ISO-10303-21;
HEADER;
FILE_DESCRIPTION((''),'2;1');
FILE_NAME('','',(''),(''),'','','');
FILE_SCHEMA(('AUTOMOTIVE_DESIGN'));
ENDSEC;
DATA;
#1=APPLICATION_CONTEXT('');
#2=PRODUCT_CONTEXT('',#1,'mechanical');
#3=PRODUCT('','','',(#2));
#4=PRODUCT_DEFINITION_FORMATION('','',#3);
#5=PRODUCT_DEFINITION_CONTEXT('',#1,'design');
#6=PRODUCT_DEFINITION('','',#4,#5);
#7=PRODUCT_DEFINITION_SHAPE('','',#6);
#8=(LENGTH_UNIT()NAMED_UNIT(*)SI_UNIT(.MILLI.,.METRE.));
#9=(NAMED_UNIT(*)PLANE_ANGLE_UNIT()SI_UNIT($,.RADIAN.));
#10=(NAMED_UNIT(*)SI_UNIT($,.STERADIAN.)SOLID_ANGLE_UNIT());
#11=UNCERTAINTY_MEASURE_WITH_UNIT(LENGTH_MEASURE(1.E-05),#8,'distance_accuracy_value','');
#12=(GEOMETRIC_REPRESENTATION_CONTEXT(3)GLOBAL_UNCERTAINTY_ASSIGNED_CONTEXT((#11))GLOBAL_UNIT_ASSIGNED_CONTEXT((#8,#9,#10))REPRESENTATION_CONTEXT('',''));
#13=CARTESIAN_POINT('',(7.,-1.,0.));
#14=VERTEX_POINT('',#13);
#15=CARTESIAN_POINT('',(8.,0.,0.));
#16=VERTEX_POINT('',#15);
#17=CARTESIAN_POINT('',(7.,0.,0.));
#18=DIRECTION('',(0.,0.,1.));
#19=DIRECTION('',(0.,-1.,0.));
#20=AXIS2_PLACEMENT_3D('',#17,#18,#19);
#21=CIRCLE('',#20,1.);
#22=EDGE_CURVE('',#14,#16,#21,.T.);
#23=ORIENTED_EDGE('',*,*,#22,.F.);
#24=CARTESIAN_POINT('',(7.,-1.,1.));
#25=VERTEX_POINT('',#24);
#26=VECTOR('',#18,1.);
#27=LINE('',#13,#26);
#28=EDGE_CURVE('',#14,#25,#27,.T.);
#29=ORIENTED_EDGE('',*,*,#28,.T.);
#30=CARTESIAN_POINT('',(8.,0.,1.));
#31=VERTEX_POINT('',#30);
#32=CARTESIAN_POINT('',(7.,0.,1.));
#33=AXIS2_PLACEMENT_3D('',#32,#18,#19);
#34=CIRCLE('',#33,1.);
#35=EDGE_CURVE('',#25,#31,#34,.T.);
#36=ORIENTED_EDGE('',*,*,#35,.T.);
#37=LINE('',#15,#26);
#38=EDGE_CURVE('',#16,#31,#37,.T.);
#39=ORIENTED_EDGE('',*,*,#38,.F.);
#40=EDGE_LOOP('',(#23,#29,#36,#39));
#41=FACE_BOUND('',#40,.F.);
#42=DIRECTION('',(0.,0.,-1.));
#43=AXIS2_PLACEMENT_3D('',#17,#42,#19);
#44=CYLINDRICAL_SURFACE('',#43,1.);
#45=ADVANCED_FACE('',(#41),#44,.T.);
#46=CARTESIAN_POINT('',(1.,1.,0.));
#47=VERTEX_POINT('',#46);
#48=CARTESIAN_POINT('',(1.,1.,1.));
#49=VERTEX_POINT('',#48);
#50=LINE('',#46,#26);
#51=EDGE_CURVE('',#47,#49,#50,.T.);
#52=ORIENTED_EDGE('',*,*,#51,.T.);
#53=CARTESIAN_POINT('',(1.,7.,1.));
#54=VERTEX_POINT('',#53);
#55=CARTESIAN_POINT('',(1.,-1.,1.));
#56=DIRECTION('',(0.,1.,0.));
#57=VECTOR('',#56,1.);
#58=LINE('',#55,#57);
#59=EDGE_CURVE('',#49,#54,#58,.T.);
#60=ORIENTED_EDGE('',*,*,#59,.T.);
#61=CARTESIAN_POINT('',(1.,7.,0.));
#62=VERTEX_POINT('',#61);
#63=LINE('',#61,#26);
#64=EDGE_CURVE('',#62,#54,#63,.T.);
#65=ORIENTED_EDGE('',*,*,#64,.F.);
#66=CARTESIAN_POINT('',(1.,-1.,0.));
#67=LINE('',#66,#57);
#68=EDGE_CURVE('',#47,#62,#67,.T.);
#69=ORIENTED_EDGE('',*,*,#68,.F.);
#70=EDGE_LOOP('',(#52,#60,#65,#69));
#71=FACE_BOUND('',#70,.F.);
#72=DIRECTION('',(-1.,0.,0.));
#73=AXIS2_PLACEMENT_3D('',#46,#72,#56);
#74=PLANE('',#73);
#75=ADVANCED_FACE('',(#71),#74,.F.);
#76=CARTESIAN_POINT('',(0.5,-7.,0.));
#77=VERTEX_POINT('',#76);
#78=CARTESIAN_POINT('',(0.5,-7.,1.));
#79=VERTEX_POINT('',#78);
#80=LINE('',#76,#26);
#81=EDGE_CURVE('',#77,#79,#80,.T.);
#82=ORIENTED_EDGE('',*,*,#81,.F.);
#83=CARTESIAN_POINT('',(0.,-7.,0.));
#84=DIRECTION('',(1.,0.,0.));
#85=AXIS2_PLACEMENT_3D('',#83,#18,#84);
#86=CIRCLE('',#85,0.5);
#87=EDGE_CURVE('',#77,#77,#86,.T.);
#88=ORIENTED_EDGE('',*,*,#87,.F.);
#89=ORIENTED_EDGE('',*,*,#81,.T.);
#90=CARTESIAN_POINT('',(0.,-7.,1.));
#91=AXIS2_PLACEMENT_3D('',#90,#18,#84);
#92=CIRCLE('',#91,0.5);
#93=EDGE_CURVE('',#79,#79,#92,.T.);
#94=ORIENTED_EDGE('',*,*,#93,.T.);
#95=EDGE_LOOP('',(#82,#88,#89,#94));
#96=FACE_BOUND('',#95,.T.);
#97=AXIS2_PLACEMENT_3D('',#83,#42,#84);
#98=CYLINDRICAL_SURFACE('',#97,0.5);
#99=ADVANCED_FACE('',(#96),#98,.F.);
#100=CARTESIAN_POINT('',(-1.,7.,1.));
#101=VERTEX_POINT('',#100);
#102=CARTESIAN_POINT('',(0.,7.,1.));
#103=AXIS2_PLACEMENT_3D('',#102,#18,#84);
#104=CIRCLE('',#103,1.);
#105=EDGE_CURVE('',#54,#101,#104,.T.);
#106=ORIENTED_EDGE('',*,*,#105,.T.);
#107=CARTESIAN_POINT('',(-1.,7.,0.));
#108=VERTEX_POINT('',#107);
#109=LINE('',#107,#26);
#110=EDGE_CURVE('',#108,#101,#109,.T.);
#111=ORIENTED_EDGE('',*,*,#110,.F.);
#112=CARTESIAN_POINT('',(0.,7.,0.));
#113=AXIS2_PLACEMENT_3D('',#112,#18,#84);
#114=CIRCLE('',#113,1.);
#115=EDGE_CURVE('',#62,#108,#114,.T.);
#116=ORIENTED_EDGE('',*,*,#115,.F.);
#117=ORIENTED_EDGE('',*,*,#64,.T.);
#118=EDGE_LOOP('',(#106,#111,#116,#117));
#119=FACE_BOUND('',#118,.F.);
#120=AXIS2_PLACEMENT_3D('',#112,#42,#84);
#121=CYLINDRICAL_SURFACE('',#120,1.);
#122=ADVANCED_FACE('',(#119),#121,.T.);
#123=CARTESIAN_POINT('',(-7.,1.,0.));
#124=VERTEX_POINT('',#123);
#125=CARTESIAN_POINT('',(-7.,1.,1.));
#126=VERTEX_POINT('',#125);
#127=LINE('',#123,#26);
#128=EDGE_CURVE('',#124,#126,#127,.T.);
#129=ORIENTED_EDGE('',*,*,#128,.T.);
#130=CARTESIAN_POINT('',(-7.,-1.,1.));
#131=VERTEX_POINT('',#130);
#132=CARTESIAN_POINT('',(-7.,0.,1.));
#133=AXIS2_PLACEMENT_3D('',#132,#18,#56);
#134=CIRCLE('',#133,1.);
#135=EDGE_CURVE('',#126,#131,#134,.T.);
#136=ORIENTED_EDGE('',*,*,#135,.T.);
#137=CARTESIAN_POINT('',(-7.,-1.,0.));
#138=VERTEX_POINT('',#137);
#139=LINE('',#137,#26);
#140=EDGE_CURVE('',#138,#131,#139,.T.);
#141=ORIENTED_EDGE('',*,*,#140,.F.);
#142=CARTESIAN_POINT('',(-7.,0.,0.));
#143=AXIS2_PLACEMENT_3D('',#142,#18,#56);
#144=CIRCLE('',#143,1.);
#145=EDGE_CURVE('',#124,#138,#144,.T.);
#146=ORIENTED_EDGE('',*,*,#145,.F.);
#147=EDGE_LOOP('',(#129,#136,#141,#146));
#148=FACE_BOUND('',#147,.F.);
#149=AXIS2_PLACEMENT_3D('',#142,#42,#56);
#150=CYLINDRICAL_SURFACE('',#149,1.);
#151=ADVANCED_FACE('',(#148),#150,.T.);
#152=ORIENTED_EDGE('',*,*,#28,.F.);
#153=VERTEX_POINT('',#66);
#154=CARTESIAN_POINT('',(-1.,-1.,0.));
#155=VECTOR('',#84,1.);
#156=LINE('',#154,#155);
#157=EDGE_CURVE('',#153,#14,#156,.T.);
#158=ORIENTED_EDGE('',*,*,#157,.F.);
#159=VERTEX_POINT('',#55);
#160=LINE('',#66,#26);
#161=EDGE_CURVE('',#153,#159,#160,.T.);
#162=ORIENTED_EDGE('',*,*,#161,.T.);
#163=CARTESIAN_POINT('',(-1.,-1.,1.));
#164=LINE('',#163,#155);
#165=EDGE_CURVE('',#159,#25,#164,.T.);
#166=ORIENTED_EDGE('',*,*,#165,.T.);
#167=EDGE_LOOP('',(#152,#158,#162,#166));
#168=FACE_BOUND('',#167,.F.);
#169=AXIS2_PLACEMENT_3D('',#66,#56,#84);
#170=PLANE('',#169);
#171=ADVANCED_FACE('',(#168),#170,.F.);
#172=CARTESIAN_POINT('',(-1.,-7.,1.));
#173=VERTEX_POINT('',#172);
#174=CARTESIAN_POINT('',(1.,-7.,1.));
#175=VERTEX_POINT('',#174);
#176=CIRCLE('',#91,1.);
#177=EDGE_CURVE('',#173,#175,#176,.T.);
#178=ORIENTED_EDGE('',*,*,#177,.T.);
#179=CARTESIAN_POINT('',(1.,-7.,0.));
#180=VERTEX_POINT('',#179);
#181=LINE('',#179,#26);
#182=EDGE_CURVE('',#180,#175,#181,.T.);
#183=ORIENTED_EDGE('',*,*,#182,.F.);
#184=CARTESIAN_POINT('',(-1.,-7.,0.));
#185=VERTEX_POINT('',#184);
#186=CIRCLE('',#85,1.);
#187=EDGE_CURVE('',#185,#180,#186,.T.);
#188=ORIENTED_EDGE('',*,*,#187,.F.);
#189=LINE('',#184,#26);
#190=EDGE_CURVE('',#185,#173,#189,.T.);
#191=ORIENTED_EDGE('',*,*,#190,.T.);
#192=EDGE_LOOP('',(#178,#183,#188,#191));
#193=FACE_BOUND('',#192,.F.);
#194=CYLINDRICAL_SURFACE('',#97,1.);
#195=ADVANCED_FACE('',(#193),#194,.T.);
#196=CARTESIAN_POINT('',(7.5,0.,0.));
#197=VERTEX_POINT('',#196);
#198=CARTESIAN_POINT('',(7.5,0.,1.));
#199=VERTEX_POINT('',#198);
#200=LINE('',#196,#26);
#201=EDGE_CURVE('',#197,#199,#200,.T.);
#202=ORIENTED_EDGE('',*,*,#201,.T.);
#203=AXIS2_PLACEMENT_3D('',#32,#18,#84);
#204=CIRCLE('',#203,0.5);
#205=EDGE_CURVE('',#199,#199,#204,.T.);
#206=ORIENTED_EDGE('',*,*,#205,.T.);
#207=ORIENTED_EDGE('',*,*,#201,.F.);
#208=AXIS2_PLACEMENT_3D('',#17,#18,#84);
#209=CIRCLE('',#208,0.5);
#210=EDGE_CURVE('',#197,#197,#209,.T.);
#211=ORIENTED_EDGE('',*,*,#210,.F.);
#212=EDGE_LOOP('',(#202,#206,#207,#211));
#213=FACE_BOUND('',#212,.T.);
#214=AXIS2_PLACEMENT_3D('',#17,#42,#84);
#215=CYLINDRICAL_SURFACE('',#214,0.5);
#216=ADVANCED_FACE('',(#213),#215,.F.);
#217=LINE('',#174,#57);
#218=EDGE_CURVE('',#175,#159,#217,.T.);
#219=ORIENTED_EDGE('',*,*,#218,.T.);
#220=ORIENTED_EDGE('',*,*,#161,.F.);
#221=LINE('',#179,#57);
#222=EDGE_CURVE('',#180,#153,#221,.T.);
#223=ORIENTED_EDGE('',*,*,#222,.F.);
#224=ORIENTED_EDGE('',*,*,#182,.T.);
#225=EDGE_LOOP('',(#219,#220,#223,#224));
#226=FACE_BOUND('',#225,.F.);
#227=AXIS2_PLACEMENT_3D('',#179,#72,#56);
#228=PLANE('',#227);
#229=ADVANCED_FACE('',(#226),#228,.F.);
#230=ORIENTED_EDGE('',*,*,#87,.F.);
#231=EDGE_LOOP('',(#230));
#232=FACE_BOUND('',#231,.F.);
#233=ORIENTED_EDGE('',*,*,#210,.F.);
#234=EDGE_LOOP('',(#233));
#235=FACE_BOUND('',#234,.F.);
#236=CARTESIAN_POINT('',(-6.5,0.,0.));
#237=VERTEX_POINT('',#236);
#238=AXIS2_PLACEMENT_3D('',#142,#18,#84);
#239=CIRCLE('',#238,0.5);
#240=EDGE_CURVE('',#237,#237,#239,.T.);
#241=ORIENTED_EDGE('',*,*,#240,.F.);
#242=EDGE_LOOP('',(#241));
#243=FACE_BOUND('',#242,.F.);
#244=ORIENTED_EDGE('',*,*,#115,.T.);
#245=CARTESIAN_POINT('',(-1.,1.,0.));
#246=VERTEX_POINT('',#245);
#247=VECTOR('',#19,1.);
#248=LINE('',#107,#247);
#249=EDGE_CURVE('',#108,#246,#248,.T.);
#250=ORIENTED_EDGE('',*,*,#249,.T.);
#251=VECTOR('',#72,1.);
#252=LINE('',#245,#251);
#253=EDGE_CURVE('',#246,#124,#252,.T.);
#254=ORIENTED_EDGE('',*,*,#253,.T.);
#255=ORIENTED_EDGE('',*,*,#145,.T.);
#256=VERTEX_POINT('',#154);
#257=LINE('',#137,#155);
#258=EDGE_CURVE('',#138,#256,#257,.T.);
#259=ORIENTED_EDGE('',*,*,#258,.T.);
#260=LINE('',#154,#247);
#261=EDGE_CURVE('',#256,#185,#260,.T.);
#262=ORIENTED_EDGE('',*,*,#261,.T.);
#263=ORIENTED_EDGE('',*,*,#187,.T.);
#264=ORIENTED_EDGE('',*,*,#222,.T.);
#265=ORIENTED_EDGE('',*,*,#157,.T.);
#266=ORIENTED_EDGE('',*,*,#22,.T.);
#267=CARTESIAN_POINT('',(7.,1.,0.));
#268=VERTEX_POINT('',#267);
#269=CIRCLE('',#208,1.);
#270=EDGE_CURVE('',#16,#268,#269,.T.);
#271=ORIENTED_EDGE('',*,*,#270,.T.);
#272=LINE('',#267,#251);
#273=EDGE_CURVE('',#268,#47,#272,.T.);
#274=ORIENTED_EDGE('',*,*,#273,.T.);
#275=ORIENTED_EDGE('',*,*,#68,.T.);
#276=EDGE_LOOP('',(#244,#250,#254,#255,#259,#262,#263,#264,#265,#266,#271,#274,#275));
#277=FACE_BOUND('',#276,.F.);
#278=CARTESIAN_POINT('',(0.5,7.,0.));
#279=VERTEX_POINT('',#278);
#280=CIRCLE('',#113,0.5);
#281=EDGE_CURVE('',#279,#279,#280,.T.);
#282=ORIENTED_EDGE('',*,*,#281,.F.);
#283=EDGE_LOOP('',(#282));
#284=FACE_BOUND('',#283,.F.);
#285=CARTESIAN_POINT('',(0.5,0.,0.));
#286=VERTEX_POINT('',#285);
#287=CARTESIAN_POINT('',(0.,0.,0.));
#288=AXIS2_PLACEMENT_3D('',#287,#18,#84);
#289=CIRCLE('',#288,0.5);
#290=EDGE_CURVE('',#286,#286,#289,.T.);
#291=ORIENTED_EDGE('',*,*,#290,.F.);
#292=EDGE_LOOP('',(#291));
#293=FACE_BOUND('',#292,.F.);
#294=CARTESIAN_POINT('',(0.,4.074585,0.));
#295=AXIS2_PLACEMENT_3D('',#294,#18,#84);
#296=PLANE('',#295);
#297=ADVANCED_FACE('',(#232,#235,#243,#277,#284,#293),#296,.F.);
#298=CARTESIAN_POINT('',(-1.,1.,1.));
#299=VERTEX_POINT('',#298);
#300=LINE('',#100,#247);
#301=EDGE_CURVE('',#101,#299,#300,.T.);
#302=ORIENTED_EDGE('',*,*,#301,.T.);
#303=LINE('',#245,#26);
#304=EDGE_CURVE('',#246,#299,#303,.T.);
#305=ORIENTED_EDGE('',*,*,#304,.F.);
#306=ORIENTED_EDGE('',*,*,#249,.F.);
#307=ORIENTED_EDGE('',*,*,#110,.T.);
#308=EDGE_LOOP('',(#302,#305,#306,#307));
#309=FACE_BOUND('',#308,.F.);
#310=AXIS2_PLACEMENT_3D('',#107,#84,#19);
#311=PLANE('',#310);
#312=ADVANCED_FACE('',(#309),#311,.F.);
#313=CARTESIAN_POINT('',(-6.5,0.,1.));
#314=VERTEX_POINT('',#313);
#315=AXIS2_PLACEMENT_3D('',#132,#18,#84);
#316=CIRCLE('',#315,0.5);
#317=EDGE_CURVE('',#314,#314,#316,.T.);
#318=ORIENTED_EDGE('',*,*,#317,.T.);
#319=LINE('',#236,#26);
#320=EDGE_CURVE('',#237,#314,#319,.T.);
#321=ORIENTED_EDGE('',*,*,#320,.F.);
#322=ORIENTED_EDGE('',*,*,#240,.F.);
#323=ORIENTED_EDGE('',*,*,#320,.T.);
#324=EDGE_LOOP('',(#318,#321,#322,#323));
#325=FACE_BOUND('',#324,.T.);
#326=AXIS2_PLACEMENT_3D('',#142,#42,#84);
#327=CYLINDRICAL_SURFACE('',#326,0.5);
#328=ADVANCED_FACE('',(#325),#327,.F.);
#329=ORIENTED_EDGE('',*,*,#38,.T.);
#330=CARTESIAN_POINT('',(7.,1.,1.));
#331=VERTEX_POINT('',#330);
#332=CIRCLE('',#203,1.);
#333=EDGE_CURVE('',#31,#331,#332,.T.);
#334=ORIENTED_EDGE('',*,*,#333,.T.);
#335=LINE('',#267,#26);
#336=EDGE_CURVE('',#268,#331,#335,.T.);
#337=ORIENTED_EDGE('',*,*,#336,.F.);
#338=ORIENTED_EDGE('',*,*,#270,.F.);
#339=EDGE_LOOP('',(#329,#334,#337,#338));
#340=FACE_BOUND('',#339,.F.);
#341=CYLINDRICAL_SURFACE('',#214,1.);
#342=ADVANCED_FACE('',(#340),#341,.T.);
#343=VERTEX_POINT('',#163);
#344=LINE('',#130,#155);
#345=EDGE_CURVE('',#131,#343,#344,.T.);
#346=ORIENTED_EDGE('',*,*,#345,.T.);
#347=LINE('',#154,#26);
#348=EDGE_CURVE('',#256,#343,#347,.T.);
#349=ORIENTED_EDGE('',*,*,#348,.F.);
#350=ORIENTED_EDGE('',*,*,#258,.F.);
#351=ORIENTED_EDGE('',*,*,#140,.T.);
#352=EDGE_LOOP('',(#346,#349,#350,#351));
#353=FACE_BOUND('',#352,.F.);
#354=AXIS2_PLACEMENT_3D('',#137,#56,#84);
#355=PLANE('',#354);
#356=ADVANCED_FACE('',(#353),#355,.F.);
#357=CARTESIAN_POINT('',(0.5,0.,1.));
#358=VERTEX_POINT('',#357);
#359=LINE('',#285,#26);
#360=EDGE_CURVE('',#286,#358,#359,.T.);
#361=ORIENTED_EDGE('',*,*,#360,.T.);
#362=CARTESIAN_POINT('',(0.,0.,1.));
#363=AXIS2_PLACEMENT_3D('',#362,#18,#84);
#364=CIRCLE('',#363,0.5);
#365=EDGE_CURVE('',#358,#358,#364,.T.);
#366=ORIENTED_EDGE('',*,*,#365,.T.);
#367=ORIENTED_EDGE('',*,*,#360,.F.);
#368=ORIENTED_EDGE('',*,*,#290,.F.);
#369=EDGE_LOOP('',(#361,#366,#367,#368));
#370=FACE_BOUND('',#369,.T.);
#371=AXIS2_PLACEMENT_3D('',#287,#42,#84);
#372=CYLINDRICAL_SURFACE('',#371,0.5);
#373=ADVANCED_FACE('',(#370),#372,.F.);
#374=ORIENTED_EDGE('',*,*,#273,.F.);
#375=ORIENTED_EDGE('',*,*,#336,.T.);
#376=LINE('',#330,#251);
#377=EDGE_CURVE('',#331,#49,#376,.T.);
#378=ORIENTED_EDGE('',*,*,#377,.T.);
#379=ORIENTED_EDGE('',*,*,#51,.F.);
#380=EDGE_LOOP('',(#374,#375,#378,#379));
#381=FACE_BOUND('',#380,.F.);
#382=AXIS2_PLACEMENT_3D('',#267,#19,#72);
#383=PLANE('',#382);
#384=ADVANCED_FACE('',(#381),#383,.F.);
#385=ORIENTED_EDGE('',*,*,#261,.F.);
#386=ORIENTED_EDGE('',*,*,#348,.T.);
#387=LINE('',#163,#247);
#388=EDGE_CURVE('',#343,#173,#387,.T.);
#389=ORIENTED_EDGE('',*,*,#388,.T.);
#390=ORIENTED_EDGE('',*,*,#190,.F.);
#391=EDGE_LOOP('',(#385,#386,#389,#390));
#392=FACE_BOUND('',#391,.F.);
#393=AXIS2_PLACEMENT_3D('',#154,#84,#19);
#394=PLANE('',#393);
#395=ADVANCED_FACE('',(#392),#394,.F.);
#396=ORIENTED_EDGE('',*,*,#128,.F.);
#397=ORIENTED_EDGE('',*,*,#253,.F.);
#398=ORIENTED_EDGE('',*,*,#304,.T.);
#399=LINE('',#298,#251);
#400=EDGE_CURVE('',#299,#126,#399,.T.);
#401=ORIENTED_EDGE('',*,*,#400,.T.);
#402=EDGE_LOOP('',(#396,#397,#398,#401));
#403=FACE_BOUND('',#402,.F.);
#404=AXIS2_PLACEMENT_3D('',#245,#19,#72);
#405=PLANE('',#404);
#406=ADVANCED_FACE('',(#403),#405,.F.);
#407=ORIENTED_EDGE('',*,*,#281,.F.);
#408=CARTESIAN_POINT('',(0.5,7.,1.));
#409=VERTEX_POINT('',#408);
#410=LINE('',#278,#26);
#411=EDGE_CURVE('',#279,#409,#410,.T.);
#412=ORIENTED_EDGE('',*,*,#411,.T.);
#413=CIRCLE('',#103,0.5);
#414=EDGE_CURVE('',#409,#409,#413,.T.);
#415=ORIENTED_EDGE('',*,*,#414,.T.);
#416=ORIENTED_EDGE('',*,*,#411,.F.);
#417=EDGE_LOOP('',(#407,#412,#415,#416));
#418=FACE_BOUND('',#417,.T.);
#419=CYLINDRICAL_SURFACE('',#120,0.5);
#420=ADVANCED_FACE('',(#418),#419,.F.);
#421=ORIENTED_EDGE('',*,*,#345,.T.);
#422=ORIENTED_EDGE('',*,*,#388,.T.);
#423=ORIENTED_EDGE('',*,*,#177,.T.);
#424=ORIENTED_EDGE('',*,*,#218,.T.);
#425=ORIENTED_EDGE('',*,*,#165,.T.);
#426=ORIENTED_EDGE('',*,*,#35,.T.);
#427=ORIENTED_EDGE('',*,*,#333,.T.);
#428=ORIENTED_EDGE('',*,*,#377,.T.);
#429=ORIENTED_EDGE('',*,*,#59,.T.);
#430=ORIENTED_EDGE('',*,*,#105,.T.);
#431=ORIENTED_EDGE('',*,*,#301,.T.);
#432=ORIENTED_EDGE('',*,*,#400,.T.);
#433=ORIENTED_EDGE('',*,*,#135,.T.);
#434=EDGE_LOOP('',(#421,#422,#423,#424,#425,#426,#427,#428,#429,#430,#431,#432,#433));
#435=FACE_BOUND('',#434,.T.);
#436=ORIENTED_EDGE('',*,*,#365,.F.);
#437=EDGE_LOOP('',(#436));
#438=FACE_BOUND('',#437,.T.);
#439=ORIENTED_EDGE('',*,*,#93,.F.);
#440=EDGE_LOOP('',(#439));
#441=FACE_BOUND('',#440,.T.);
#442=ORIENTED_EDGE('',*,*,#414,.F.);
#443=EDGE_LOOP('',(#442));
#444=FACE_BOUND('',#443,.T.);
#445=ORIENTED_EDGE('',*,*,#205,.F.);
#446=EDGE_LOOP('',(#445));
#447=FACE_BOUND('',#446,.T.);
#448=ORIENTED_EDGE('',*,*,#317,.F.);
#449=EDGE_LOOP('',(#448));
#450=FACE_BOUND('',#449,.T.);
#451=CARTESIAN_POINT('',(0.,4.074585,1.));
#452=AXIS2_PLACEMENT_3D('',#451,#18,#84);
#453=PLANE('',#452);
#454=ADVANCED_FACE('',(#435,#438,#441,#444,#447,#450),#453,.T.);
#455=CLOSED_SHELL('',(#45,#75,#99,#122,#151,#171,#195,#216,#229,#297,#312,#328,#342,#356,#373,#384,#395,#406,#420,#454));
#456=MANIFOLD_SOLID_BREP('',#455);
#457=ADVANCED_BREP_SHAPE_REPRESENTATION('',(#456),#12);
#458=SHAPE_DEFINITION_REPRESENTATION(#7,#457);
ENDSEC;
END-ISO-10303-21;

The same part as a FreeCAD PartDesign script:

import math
import FreeCAD as App
import Part
import Sketcher
Q = App.Units.Quantity

doc = App.newDocument("Part")
params = doc.addObject("Spreadsheet::Sheet", "Params")
for row, (alias, value) in enumerate([
    ("sketch1_diameter", "1 mm"),
    ("sketch1_radius", "1 mm"),
    ("sketch1_width", "6 mm"),
    ("pad1_length", "1 mm"),
], start=1):
    params.set(f"A{row}", alias)
    params.set(f"B{row}", "=" + value)
    params.setAlias(f"B{row}", alias)

body = doc.addObject("PartDesign::Body", "Body")

# Sketch on XY plane
sketch1 = doc.addObject("Sketcher::SketchObject", "Sketch")
body.addObject(sketch1)
sketch1.AttachmentSupport = (doc.XY_Plane, [""])
sketch1.MapMode = "FlatFace"
sketch1.addGeometry([
    Part.LineSegment(App.Vector(1, 1, 0), App.Vector(1, 7, 0)),  # 0
    Part.ArcOfCircle(Part.Circle(App.Vector(0, 7, 0), App.Vector(0, 0, 1), 1), math.radians(0), math.radians(180)),  # 1
    Part.LineSegment(App.Vector(-1, 7, 0), App.Vector(-1, 1, 0)),  # 2
    Part.LineSegment(App.Vector(-1, 1, 0), App.Vector(-7, 1, 0)),  # 3
    Part.ArcOfCircle(Part.Circle(App.Vector(-7, 0, 0), App.Vector(0, 0, 1), 1), math.radians(90), math.radians(270)),  # 4
    Part.LineSegment(App.Vector(-7, -1, 0), App.Vector(-1, -1, 0)),  # 5
    Part.LineSegment(App.Vector(-1, -1, 0), App.Vector(-1, -7, 0)),  # 6
    Part.ArcOfCircle(Part.Circle(App.Vector(0, -7, 0), App.Vector(0, 0, 1), 1), math.radians(180), math.radians(360)),  # 7
    Part.LineSegment(App.Vector(1, -7, 0), App.Vector(1, -1, 0)),  # 8
    Part.LineSegment(App.Vector(1, -1, 0), App.Vector(7, -1, 0)),  # 9
    Part.ArcOfCircle(Part.Circle(App.Vector(7, 0, 0), App.Vector(0, 0, 1), 1), math.radians(-90), math.radians(0)),  # 10
    Part.ArcOfCircle(Part.Circle(App.Vector(7, 0, 0), App.Vector(0, 0, 1), 1), math.radians(0), math.radians(90)),  # 11
    Part.LineSegment(App.Vector(7, 1, 0), App.Vector(1, 1, 0)),  # 12
    Part.Circle(App.Vector(0, -7, 0), App.Vector(0, 0, 1), 0.5),  # 13
    Part.Circle(App.Vector(-7, 0, 0), App.Vector(0, 0, 1), 0.5),  # 14
    Part.Circle(App.Vector(0, 0, 0), App.Vector(0, 0, 1), 0.5),  # 15
    Part.Circle(App.Vector(7, 0, 0), App.Vector(0, 0, 1), 0.5),  # 16
    Part.Circle(App.Vector(0, 7, 0), App.Vector(0, 0, 1), 0.5),  # 17
], False)
sketch1.addConstraint([
    Sketcher.Constraint("Tangent", 0, 2, 1, 1),
    Sketcher.Constraint("Tangent", 1, 2, 2, 1),
    Sketcher.Constraint("Coincident", 2, 2, 3, 1),
    Sketcher.Constraint("Tangent", 3, 2, 4, 1),
    Sketcher.Constraint("Tangent", 4, 2, 5, 1),
    Sketcher.Constraint("Coincident", 5, 2, 6, 1),
    Sketcher.Constraint("Tangent", 6, 2, 7, 1),
    Sketcher.Constraint("Tangent", 7, 2, 8, 1),
    Sketcher.Constraint("Coincident", 8, 2, 9, 1),
    Sketcher.Constraint("Tangent", 9, 2, 10, 1),
    Sketcher.Constraint("Tangent", 10, 2, 11, 1),
    Sketcher.Constraint("Tangent", 11, 2, 12, 1),
    Sketcher.Constraint("Coincident", 12, 2, 0, 1),
    Sketcher.Constraint("Vertical", 0),
    Sketcher.Constraint("Vertical", 2),
    Sketcher.Constraint("Horizontal", 3),
    Sketcher.Constraint("Horizontal", 5),
    Sketcher.Constraint("Vertical", 6),
    Sketcher.Constraint("Vertical", 8),
    Sketcher.Constraint("Horizontal", 9),
    Sketcher.Constraint("Horizontal", 12),
    Sketcher.Constraint("Coincident", 15, 3, -1, 1),
    Sketcher.Constraint("Coincident", 13, 3, 7, 3),
    Sketcher.Constraint("Coincident", 14, 3, 4, 3),
    Sketcher.Constraint("Coincident", 16, 3, 10, 3),
    Sketcher.Constraint("Coincident", 17, 3, 1, 3),
    Sketcher.Constraint("Equal", 1, 4),
    Sketcher.Constraint("Equal", 4, 7),
    Sketcher.Constraint("Equal", 7, 10),
    Sketcher.Constraint("Equal", 10, 11),
    Sketcher.Constraint("Equal", 13, 14),
    Sketcher.Constraint("Equal", 14, 15),
    Sketcher.Constraint("Equal", 15, 16),
    Sketcher.Constraint("Equal", 16, 17),
    Sketcher.Constraint("Symmetric", 1, 3, 7, 3, -1, 1),
    Sketcher.Constraint("Symmetric", 4, 3, 10, 3, -1, 1),
    Sketcher.Constraint("Symmetric", 5, 2, 8, 2, -2),
    Sketcher.Constraint("PointOnObject", 10, 2, -1),
    Sketcher.Constraint("Equal", 12, 0),
    Sketcher.Constraint("Diameter", 13, Q("1 mm")),
    Sketcher.Constraint("Radius", 1, Q("1 mm")),
    Sketcher.Constraint("DistanceX", 3, 2, 3, 1, Q("6 mm")),
])
sketch1.setExpression("Constraints[39]", "Params.sketch1_diameter")
sketch1.setExpression("Constraints[40]", "Params.sketch1_radius")
sketch1.setExpression("Constraints[41]", "Params.sketch1_width")
pad1 = doc.addObject("PartDesign::Pad", "Pad")
body.addObject(pad1)
pad1.Profile = sketch1
pad1.setExpression("Length", "Params.pad1_length")

doc.recompute()
